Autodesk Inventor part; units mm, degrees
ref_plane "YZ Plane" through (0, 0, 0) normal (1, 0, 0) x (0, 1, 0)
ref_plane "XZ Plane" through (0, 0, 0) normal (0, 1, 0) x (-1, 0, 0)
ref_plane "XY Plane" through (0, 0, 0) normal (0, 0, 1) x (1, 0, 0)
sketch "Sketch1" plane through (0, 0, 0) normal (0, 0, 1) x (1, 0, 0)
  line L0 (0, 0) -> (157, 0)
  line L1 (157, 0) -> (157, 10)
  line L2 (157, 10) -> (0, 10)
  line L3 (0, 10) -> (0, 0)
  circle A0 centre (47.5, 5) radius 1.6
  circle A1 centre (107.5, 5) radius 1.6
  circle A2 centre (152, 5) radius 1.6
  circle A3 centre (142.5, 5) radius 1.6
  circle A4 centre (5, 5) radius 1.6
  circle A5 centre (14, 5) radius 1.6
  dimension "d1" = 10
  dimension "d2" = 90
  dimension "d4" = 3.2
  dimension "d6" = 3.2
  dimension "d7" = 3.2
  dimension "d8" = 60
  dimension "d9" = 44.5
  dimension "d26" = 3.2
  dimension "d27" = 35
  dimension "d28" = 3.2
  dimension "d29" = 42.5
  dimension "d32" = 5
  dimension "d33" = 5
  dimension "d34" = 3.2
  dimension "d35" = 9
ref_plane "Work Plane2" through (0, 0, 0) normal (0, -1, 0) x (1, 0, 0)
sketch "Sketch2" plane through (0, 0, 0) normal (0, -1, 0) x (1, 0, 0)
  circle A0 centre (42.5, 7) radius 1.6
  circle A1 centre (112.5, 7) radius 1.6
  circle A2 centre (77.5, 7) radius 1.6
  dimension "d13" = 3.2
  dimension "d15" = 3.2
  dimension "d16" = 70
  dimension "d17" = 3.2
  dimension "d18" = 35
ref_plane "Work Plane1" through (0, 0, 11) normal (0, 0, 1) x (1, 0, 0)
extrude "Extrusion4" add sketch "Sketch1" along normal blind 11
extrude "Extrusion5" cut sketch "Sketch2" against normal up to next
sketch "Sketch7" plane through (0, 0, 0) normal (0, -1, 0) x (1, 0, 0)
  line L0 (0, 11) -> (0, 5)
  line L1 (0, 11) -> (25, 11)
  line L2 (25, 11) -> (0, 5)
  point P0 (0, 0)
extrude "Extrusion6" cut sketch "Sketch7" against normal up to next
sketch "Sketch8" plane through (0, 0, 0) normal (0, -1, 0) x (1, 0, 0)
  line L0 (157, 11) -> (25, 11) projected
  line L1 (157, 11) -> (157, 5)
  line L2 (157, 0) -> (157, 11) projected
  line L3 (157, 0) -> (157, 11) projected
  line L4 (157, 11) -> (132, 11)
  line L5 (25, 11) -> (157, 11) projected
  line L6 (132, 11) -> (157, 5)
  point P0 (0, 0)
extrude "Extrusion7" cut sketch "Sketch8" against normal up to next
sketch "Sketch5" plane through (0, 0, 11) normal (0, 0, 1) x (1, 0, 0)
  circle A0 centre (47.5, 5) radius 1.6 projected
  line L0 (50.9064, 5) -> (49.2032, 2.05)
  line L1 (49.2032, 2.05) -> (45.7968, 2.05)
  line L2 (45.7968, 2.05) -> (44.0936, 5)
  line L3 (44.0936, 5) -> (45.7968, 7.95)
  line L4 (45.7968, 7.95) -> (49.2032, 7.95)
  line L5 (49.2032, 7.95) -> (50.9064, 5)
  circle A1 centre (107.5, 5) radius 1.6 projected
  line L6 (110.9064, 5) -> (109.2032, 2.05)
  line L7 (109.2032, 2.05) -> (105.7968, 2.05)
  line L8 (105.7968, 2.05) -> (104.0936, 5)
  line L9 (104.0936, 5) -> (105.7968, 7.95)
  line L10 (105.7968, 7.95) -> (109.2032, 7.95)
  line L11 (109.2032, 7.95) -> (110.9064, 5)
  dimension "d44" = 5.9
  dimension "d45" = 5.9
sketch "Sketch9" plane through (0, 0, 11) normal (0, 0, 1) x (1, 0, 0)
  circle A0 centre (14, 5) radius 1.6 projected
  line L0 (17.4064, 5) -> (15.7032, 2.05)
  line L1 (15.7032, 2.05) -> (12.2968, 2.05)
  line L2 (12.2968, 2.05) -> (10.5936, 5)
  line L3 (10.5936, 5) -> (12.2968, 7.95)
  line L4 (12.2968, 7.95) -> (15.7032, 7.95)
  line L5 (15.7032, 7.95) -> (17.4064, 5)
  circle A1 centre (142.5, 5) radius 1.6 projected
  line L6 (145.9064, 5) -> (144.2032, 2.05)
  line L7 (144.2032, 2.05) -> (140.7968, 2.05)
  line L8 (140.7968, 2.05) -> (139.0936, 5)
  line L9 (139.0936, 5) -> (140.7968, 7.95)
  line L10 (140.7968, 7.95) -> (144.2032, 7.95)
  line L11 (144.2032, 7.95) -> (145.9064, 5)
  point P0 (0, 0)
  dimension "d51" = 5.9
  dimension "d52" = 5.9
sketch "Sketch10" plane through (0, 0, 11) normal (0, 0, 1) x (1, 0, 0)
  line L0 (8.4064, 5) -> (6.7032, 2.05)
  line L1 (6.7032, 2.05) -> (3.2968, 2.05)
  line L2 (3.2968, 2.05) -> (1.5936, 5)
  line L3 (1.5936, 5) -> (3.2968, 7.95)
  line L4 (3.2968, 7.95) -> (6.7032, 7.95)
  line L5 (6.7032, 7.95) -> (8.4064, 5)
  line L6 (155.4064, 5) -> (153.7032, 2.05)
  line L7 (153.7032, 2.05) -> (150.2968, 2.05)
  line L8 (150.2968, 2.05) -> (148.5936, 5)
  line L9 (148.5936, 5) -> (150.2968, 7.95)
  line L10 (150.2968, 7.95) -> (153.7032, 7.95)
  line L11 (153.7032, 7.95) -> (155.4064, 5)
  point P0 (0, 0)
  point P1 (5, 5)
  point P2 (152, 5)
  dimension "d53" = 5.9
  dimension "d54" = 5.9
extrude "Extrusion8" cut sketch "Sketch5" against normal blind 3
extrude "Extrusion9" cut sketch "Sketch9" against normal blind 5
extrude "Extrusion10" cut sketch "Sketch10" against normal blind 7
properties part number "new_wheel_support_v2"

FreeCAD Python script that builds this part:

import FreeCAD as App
import Part
import Sketcher

V = App.Vector
Q = App.Units.Quantity

doc = App.newDocument("Part")
body = doc.addObject("PartDesign::Body", "Body")

# Sketch on XY plane
sketch1 = body.newObject("Sketcher::SketchObject", "Sketch")
sketch1.AttachmentSupport = (doc.getObject("XY_Plane"), [""])
sketch1.MapMode = "FlatFace"
sketch1.addGeometry([
    Part.LineSegment(V(0, 10, 0), V(0, 0, 0)),  # 0
    Part.LineSegment(V(0, 0, 0), V(157, 0, 0)),  # 1
    Part.LineSegment(V(157, 0, 0), V(157, 10, 0)),  # 2
    Part.LineSegment(V(157, 10, 0), V(0, 10, 0)),  # 3
    Part.Circle(V(5, 5, 0), V(0, 0, 1), 1.6),  # 4
    Part.Circle(V(14, 5, 0), V(0, 0, 1), 1.6),  # 5
    Part.Circle(V(47.5, 5, 0), V(0, 0, 1), 1.6),  # 6
    Part.Circle(V(107.5, 5, 0), V(0, 0, 1), 1.6),  # 7
    Part.Circle(V(142.5, 5, 0), V(0, 0, 1), 1.6),  # 8
    Part.Circle(V(152, 5, 0), V(0, 0, 1), 1.6),  # 9
], False)
sketch1.addConstraint([
    Sketcher.Constraint("Coincident", 0, 2, 1, 1),
    Sketcher.Constraint("Coincident", 1, 2, 2, 1),
    Sketcher.Constraint("Coincident", 2, 2, 3, 1),
    Sketcher.Constraint("Coincident", 3, 2, 0, 1),
    Sketcher.Constraint("Vertical", 0),
    Sketcher.Constraint("Horizontal", 1),
    Sketcher.Constraint("Vertical", 2),
    Sketcher.Constraint("Horizontal", 3),
    Sketcher.Constraint("Coincident", 0, 2, -1, 1),
    Sketcher.Constraint("Equal", 4, 5),
    Sketcher.Constraint("Equal", 5, 6),
    Sketcher.Constraint("Equal", 6, 7),
    Sketcher.Constraint("Equal", 7, 8),
    Sketcher.Constraint("Equal", 8, 9),
    Sketcher.Constraint("Horizontal", 4, 3, 5, 3),
    Sketcher.Constraint("Horizontal", 5, 3, 6, 3),
    Sketcher.Constraint("Horizontal", 6, 3, 7, 3),
    Sketcher.Constraint("Horizontal", 7, 3, 8, 3),
    Sketcher.Constraint("Horizontal", 8, 3, 9, 3),
    Sketcher.Constraint("Diameter", 4, 3.2),
    Sketcher.Constraint("DistanceY", 0, 2, 0, 1, 10.0),
    Sketcher.Constraint("DistanceX", -1, 1, 4, 3, 5.0),
    Sketcher.Constraint("DistanceY", -1, 1, 4, 3, 5.0),
    Sketcher.Constraint("DistanceX", 4, 3, 5, 3, 9.0),
    Sketcher.Constraint("DistanceX", 6, 3, 7, 3, 60.0),
    Sketcher.Constraint("DistanceX", 7, 3, 8, 3, 35.0),
    Sketcher.Constraint("DistanceX", 9, 3, 1, 2, 5.0),
    Sketcher.Constraint("DistanceX", 4, 3, 6, 3, 42.5),
    Sketcher.Constraint("DistanceX", 7, 3, 9, 3, 44.5),
])
pad1 = body.newObject("PartDesign::Pad", "Pad")
pad1.Profile = sketch1
pad1.Length = 11

# Sketch on XZ plane
sketch2 = body.newObject("Sketcher::SketchObject", "Sketch001")
sketch2.AttachmentSupport = (doc.getObject("XZ_Plane"), [""])
sketch2.MapMode = "FlatFace"
sketch2.addGeometry([
    Part.Circle(V(42.5, 7, 0), V(0, 0, 1), 1.6),
    Part.Circle(V(112.5, 7, 0), V(0, 0, 1), 1.6),
    Part.Circle(V(77.5, 7, 0), V(0, 0, 1), 1.6),
], False)
sketch2.addConstraint([
    Sketcher.Constraint("Equal", 0, 1),
    Sketcher.Constraint("Equal", 1, 2),
    Sketcher.Constraint("Horizontal", 0, 3, 1, 3),
    Sketcher.Constraint("Horizontal", 1, 3, 2, 3),
    Sketcher.Constraint("Diameter", 0, 3.2),
    Sketcher.Constraint("DistanceX", 0, 3, 1, 3, 70.0),
    Sketcher.Constraint("DistanceX", 0, 3, 2, 3, 35.0),
    Sketcher.Constraint("DistanceY", -1, 1, 0, 3, 7.0),
    Sketcher.Constraint("DistanceX", -1, 1, 0, 3, 42.5),
])
pocket1 = body.newObject("PartDesign::Pocket", "Pocket")
pocket1.Profile = sketch2
pocket1.Type = "UpToFirst"

# Sketch on XZ plane
sketch3 = body.newObject("Sketcher::SketchObject", "Sketch002")
sketch3.AttachmentSupport = (doc.getObject("XZ_Plane"), [""])
sketch3.MapMode = "FlatFace"
sketch3.addGeometry([
    Part.LineSegment(V(25, 11, 0), V(0, 11, 0)),
    Part.LineSegment(V(0, 11, 0), V(0, 5, 0)),
    Part.LineSegment(V(0, 5, 0), V(25, 11, 0)),
], False)
sketch3.addConstraint([
    Sketcher.Constraint("Coincident", 0, 2, 1, 1),
    Sketcher.Constraint("Coincident", 1, 2, 2, 1),
    Sketcher.Constraint("Coincident", 2, 2, 0, 1),
    Sketcher.Constraint("Horizontal", 0),
    Sketcher.Constraint("Vertical", 1),
    Sketcher.Constraint("PointOnObject", 0, 2, -2),
    Sketcher.Constraint("DistanceX", 0, 2, 0, 1, 25.0),
    Sketcher.Constraint("DistanceY", 1, 2, 1, 1, 6.0),
    Sketcher.Constraint("DistanceY", -1, 1, 0, 2, 11.0),
])
pocket2 = body.newObject("PartDesign::Pocket", "Pocket001")
pocket2.Profile = sketch3
pocket2.Type = "UpToFirst"

# Sketch on XZ plane
sketch4 = body.newObject("Sketcher::SketchObject", "Sketch003")
sketch4.AttachmentSupport = (doc.getObject("XZ_Plane"), [""])
sketch4.MapMode = "FlatFace"
sketch4.addGeometry([
    Part.LineSegment(V(157, 5, 0), V(157, 11, 0)),
    Part.LineSegment(V(157, 11, 0), V(132, 11, 0)),
    Part.LineSegment(V(132, 11, 0), V(157, 5, 0)),
], False)
sketch4.addConstraint([
    Sketcher.Constraint("Coincident", 0, 2, 1, 1),
    Sketcher.Constraint("Coincident", 1, 2, 2, 1),
    Sketcher.Constraint("Coincident", 2, 2, 0, 1),
    Sketcher.Constraint("Vertical", 0),
    Sketcher.Constraint("Horizontal", 1),
    Sketcher.Constraint("DistanceX", 1, 2, 1, 1, 25.0),
    Sketcher.Constraint("DistanceY", 0, 1, 0, 2, 6.0),
    Sketcher.Constraint("DistanceX", -1, 1, 0, 2, 157.0),
    Sketcher.Constraint("DistanceY", -1, 1, 0, 2, 11.0),
])
pocket3 = body.newObject("PartDesign::Pocket", "Pocket002")
pocket3.Profile = sketch4
pocket3.Type = "UpToFirst"

# Sketch on XY plane
sketch5 = body.newObject("Sketcher::SketchObject", "Sketch004")
sketch5.AttachmentSupport = (doc.getObject("XY_Plane"), [""])
sketch5.MapMode = "FlatFace"
sketch5.AttachmentOffset = App.Placement(V(0, 0, 11), App.Rotation())
sketch5.addGeometry([
    Part.LineSegment(V(49.2, 2, 0), V(50.9, 5, 0)),  # 0
    Part.LineSegment(V(50.9, 5, 0), V(49.2, 8, 0)),  # 1
    Part.LineSegment(V(49.2, 8, 0), V(45.8, 8, 0)),  # 2
    Part.LineSegment(V(45.8, 8, 0), V(44.1, 5, 0)),  # 3
    Part.LineSegment(V(44.1, 5, 0), V(45.8, 2, 0)),  # 4
    Part.LineSegment(V(45.8, 2, 0), V(49.2, 2, 0)),  # 5
    Part.Circle(V(47.5, 5, 0), V(0, 0, 1), 1.6),  # 6
    Part.LineSegment(V(109.2, 2, 0), V(110.9, 5, 0)),  # 7
    Part.LineSegment(V(110.9, 5, 0), V(109.2, 8, 0)),  # 8
    Part.LineSegment(V(109.2, 8, 0), V(105.8, 8, 0)),  # 9
    Part.LineSegment(V(105.8, 8, 0), V(104.1, 5, 0)),  # 10
    Part.LineSegment(V(104.1, 5, 0), V(105.8, 2, 0)),  # 11
    Part.LineSegment(V(105.8, 2, 0), V(109.2, 2, 0)),  # 12
    Part.Circle(V(107.5, 5, 0), V(0, 0, 1), 1.6),  # 13
], False)
sketch5.addConstraint([
    Sketcher.Constraint("Coincident", 0, 2, 1, 1),
    Sketcher.Constraint("Coincident", 1, 2, 2, 1),
    Sketcher.Constraint("Coincident", 2, 2, 3, 1),
    Sketcher.Constraint("Coincident", 3, 2, 4, 1),
    Sketcher.Constraint("Coincident", 4, 2, 5, 1),
    Sketcher.Constraint("Coincident", 5, 2, 0, 1),
    Sketcher.Constraint("Coincident", 7, 2, 8, 1),
    Sketcher.Constraint("Coincident", 8, 2, 9, 1),
    Sketcher.Constraint("Coincident", 9, 2, 10, 1),
    Sketcher.Constraint("Coincident", 10, 2, 11, 1),
    Sketcher.Constraint("Coincident", 11, 2, 12, 1),
    Sketcher.Constraint("Coincident", 12, 2, 7, 1),
    Sketcher.Constraint("Horizontal", 2),
    Sketcher.Constraint("Horizontal", 5),
    Sketcher.Constraint("Horizontal", 9),
    Sketcher.Constraint("Horizontal", 12),
    Sketcher.Constraint("Equal", 6, 13),
    Sketcher.Constraint("Parallel", 0, 3),
    Sketcher.Constraint("Parallel", 1, 4),
    Sketcher.Constraint("Parallel", 3, 7),
    Sketcher.Constraint("Parallel", 4, 8),
    Sketcher.Constraint("Parallel", 7, 10),
    Sketcher.Constraint("Parallel", 8, 11),
    Sketcher.Constraint("Horizontal", 6, 3, 13, 3),
    Sketcher.Constraint("Horizontal", 13, 3, 0, 2),
    Sketcher.Constraint("Horizontal", 0, 2, 3, 2),
    Sketcher.Constraint("Horizontal", 3, 2, 7, 2),
    Sketcher.Constraint("Horizontal", 2, 2, 8, 2),
    Sketcher.Constraint("Horizontal", 7, 2, 10, 2),
    Sketcher.Constraint("Horizontal", 5, 2, 11, 2),
    Sketcher.Constraint("Vertical", 2, 2, 4, 2),
    Sketcher.Constraint("Vertical", 1, 2, 5, 2),
    Sketcher.Constraint("Equal", 5, 9),
    Sketcher.Constraint("Diameter", 6, 3.2),
    Sketcher.Constraint("DistanceY", 4, 2, 2, 2, 5.9),
    Sketcher.Constraint("Angle", 0, Q("59.9998 deg")),
    Sketcher.Constraint("DistanceY", -1, 1, 6, 3, 5.0),
    Sketcher.Constraint("DistanceX", 6, 3, 13, 3, 60.0),
    Sketcher.Constraint("DistanceX", 0, 2, 7, 2, 60.0),
    Sketcher.Constraint("DistanceX", -1, 1, 6, 3, 47.5),
    Sketcher.Constraint("DistanceX", 2, 2, 2, 1, 3.4064),
    Sketcher.Constraint("DistanceX", -1, 1, 0, 2, 50.9064),
])
pocket4 = body.newObject("PartDesign::Pocket", "Pocket003")
pocket4.Profile = sketch5
pocket4.Length = 3

# Sketch on XY plane
sketch6 = body.newObject("Sketcher::SketchObject", "Sketch005")
sketch6.AttachmentSupport = (doc.getObject("XY_Plane"), [""])
sketch6.MapMode = "FlatFace"
sketch6.AttachmentOffset = App.Placement(V(0, 0, 11), App.Rotation())
sketch6.addGeometry([
    Part.LineSegment(V(15.7, 2, 0), V(17.4, 5, 0)),  # 0
    Part.LineSegment(V(17.4, 5, 0), V(15.7, 8, 0)),  # 1
    Part.LineSegment(V(15.7, 8, 0), V(12.3, 8, 0)),  # 2
    Part.LineSegment(V(12.3, 8, 0), V(10.6, 5, 0)),  # 3
    Part.LineSegment(V(10.6, 5, 0), V(12.3, 2, 0)),  # 4
    Part.LineSegment(V(12.3, 2, 0), V(15.7, 2, 0)),  # 5
    Part.Circle(V(14, 5, 0), V(0, 0, 1), 1.6),  # 6
    Part.LineSegment(V(144.2, 2, 0), V(145.9, 5, 0)),  # 7
    Part.LineSegment(V(145.9, 5, 0), V(144.2, 8, 0)),  # 8
    Part.LineSegment(V(144.2, 8, 0), V(140.8, 8, 0)),  # 9
    Part.LineSegment(V(140.8, 8, 0), V(139.1, 5, 0)),  # 10
    Part.LineSegment(V(139.1, 5, 0), V(140.8, 2, 0)),  # 11
    Part.LineSegment(V(140.8, 2, 0), V(144.2, 2, 0)),  # 12
    Part.Circle(V(142.5, 5, 0), V(0, 0, 1), 1.6),  # 13
], False)
sketch6.addConstraint([
    Sketcher.Constraint("Coincident", 0, 2, 1, 1),
    Sketcher.Constraint("Coincident", 1, 2, 2, 1),
    Sketcher.Constraint("Coincident", 2, 2, 3, 1),
    Sketcher.Constraint("Coincident", 3, 2, 4, 1),
    Sketcher.Constraint("Coincident", 4, 2, 5, 1),
    Sketcher.Constraint("Coincident", 5, 2, 0, 1),
    Sketcher.Constraint("Coincident", 7, 2, 8, 1),
    Sketcher.Constraint("Coincident", 8, 2, 9, 1),
    Sketcher.Constraint("Coincident", 9, 2, 10, 1),
    Sketcher.Constraint("Coincident", 10, 2, 11, 1),
    Sketcher.Constraint("Coincident", 11, 2, 12, 1),
    Sketcher.Constraint("Coincident", 12, 2, 7, 1),
    Sketcher.Constraint("Horizontal", 2),
    Sketcher.Constraint("Horizontal", 5),
    Sketcher.Constraint("Horizontal", 9),
    Sketcher.Constraint("Horizontal", 12),
    Sketcher.Constraint("Equal", 6, 13),
    Sketcher.Constraint("Parallel", 0, 3),
    Sketcher.Constraint("Parallel", 1, 4),
    Sketcher.Constraint("Parallel", 3, 7),
    Sketcher.Constraint("Parallel", 4, 8),
    Sketcher.Constraint("Parallel", 7, 10),
    Sketcher.Constraint("Parallel", 8, 11),
    Sketcher.Constraint("Horizontal", 6, 3, 13, 3),
    Sketcher.Constraint("Horizontal", 13, 3, 0, 2),
    Sketcher.Constraint("Horizontal", 0, 2, 3, 2),
    Sketcher.Constraint("Horizontal", 3, 2, 7, 2),
    Sketcher.Constraint("Horizontal", 2, 2, 8, 2),
    Sketcher.Constraint("Horizontal", 7, 2, 10, 2),
    Sketcher.Constraint("Horizontal", 5, 2, 11, 2),
    Sketcher.Constraint("Vertical", 2, 2, 4, 2),
    Sketcher.Constraint("Vertical", 1, 2, 5, 2),
    Sketcher.Constraint("Equal", 5, 9),
    Sketcher.Constraint("Diameter", 6, 3.2),
    Sketcher.Constraint("DistanceY", 4, 2, 2, 2, 5.9),
    Sketcher.Constraint("Angle", 0, Q("59.9998 deg")),
    Sketcher.Constraint("DistanceX", -1, 1, 6, 3, 14.0),
    Sketcher.Constraint("DistanceY", -1, 1, 6, 3, 5.0),
    Sketcher.Constraint("DistanceX", -1, 1, 13, 3, 142.5),
    Sketcher.Constraint("DistanceX", 0, 2, 7, 2, 128.5),
    Sketcher.Constraint("DistanceX", 2, 2, 2, 1, 3.4064),
    Sketcher.Constraint("DistanceX", -1, 1, 0, 2, 17.4064),
])
pocket5 = body.newObject("PartDesign::Pocket", "Pocket004")
pocket5.Profile = sketch6
pocket5.Length = 5

# Sketch on XY plane
sketch7 = body.newObject("Sketcher::SketchObject", "Sketch006")
sketch7.AttachmentSupport = (doc.getObject("XY_Plane"), [""])
sketch7.MapMode = "FlatFace"
sketch7.AttachmentOffset = App.Placement(V(0, 0, 11), App.Rotation())
sketch7.addGeometry([
    Part.LineSegment(V(6.7, 2, 0), V(8.4, 5, 0)),  # 0
    Part.LineSegment(V(8.4, 5, 0), V(6.7, 8, 0)),  # 1
    Part.LineSegment(V(6.7, 8, 0), V(3.3, 8, 0)),  # 2
    Part.LineSegment(V(3.3, 8, 0), V(1.6, 5, 0)),  # 3
    Part.LineSegment(V(1.6, 5, 0), V(3.3, 2, 0)),  # 4
    Part.LineSegment(V(3.3, 2, 0), V(6.7, 2, 0)),  # 5
    Part.LineSegment(V(153.7, 2, 0), V(155.4, 5, 0)),  # 6
    Part.LineSegment(V(155.4, 5, 0), V(153.7, 8, 0)),  # 7
    Part.LineSegment(V(153.7, 8, 0), V(150.3, 8, 0)),  # 8
    Part.LineSegment(V(150.3, 8, 0), V(148.6, 5, 0)),  # 9
    Part.LineSegment(V(148.6, 5, 0), V(150.3, 2, 0)),  # 10
    Part.LineSegment(V(150.3, 2, 0), V(153.7, 2, 0)),  # 11
], False)
sketch7.addConstraint([
    Sketcher.Constraint("Coincident", 0, 2, 1, 1),
    Sketcher.Constraint("Coincident", 1, 2, 2, 1),
    Sketcher.Constraint("Coincident", 2, 2, 3, 1),
    Sketcher.Constraint("Coincident", 3, 2, 4, 1),
    Sketcher.Constraint("Coincident", 4, 2, 5, 1),
    Sketcher.Constraint("Coincident", 5, 2, 0, 1),
    Sketcher.Constraint("Coincident", 6, 2, 7, 1),
    Sketcher.Constraint("Coincident", 7, 2, 8, 1),
    Sketcher.Constraint("Coincident", 8, 2, 9, 1),
    Sketcher.Constraint("Coincident", 9, 2, 10, 1),
    Sketcher.Constraint("Coincident", 10, 2, 11, 1),
    Sketcher.Constraint("Coincident", 11, 2, 6, 1),
    Sketcher.Constraint("Horizontal", 2),
    Sketcher.Constraint("Horizontal", 5),
    Sketcher.Constraint("Horizontal", 8),
    Sketcher.Constraint("Horizontal", 11),
    Sketcher.Constraint("Parallel", 0, 3),
    Sketcher.Constraint("Parallel", 1, 4),
    Sketcher.Constraint("Parallel", 3, 6),
    Sketcher.Constraint("Parallel", 4, 7),
    Sketcher.Constraint("Parallel", 6, 9),
    Sketcher.Constraint("Parallel", 7, 10),
    Sketcher.Constraint("Horizontal", 0, 2, 3, 2),
    Sketcher.Constraint("Horizontal", 3, 2, 6, 2),
    Sketcher.Constraint("Horizontal", 2, 2, 7, 2),
    Sketcher.Constraint("Horizontal", 6, 2, 9, 2),
    Sketcher.Constraint("Horizontal", 5, 2, 10, 2),
    Sketcher.Constraint("Vertical", 2, 2, 4, 2),
    Sketcher.Constraint("Vertical", 1, 2, 5, 2),
    Sketcher.Constraint("Equal", 5, 8),
    Sketcher.Constraint("DistanceY", 4, 2, 2, 2, 5.9),
    Sketcher.Constraint("Angle", 0, Q("59.9998 deg")),
    Sketcher.Constraint("DistanceY", -1, 1, 0, 2, 5.0),
    Sketcher.Constraint("DistanceX", 0, 2, 6, 2, 147.0),
    Sketcher.Constraint("DistanceX", 2, 2, 2, 1, 3.4064),
    Sketcher.Constraint("DistanceX", -1, 1, 0, 2, 8.4064),
])
pocket6 = body.newObject("PartDesign::Pocket", "Pocket005")
pocket6.Profile = sketch7
pocket6.Length = 7

doc.recompute()
